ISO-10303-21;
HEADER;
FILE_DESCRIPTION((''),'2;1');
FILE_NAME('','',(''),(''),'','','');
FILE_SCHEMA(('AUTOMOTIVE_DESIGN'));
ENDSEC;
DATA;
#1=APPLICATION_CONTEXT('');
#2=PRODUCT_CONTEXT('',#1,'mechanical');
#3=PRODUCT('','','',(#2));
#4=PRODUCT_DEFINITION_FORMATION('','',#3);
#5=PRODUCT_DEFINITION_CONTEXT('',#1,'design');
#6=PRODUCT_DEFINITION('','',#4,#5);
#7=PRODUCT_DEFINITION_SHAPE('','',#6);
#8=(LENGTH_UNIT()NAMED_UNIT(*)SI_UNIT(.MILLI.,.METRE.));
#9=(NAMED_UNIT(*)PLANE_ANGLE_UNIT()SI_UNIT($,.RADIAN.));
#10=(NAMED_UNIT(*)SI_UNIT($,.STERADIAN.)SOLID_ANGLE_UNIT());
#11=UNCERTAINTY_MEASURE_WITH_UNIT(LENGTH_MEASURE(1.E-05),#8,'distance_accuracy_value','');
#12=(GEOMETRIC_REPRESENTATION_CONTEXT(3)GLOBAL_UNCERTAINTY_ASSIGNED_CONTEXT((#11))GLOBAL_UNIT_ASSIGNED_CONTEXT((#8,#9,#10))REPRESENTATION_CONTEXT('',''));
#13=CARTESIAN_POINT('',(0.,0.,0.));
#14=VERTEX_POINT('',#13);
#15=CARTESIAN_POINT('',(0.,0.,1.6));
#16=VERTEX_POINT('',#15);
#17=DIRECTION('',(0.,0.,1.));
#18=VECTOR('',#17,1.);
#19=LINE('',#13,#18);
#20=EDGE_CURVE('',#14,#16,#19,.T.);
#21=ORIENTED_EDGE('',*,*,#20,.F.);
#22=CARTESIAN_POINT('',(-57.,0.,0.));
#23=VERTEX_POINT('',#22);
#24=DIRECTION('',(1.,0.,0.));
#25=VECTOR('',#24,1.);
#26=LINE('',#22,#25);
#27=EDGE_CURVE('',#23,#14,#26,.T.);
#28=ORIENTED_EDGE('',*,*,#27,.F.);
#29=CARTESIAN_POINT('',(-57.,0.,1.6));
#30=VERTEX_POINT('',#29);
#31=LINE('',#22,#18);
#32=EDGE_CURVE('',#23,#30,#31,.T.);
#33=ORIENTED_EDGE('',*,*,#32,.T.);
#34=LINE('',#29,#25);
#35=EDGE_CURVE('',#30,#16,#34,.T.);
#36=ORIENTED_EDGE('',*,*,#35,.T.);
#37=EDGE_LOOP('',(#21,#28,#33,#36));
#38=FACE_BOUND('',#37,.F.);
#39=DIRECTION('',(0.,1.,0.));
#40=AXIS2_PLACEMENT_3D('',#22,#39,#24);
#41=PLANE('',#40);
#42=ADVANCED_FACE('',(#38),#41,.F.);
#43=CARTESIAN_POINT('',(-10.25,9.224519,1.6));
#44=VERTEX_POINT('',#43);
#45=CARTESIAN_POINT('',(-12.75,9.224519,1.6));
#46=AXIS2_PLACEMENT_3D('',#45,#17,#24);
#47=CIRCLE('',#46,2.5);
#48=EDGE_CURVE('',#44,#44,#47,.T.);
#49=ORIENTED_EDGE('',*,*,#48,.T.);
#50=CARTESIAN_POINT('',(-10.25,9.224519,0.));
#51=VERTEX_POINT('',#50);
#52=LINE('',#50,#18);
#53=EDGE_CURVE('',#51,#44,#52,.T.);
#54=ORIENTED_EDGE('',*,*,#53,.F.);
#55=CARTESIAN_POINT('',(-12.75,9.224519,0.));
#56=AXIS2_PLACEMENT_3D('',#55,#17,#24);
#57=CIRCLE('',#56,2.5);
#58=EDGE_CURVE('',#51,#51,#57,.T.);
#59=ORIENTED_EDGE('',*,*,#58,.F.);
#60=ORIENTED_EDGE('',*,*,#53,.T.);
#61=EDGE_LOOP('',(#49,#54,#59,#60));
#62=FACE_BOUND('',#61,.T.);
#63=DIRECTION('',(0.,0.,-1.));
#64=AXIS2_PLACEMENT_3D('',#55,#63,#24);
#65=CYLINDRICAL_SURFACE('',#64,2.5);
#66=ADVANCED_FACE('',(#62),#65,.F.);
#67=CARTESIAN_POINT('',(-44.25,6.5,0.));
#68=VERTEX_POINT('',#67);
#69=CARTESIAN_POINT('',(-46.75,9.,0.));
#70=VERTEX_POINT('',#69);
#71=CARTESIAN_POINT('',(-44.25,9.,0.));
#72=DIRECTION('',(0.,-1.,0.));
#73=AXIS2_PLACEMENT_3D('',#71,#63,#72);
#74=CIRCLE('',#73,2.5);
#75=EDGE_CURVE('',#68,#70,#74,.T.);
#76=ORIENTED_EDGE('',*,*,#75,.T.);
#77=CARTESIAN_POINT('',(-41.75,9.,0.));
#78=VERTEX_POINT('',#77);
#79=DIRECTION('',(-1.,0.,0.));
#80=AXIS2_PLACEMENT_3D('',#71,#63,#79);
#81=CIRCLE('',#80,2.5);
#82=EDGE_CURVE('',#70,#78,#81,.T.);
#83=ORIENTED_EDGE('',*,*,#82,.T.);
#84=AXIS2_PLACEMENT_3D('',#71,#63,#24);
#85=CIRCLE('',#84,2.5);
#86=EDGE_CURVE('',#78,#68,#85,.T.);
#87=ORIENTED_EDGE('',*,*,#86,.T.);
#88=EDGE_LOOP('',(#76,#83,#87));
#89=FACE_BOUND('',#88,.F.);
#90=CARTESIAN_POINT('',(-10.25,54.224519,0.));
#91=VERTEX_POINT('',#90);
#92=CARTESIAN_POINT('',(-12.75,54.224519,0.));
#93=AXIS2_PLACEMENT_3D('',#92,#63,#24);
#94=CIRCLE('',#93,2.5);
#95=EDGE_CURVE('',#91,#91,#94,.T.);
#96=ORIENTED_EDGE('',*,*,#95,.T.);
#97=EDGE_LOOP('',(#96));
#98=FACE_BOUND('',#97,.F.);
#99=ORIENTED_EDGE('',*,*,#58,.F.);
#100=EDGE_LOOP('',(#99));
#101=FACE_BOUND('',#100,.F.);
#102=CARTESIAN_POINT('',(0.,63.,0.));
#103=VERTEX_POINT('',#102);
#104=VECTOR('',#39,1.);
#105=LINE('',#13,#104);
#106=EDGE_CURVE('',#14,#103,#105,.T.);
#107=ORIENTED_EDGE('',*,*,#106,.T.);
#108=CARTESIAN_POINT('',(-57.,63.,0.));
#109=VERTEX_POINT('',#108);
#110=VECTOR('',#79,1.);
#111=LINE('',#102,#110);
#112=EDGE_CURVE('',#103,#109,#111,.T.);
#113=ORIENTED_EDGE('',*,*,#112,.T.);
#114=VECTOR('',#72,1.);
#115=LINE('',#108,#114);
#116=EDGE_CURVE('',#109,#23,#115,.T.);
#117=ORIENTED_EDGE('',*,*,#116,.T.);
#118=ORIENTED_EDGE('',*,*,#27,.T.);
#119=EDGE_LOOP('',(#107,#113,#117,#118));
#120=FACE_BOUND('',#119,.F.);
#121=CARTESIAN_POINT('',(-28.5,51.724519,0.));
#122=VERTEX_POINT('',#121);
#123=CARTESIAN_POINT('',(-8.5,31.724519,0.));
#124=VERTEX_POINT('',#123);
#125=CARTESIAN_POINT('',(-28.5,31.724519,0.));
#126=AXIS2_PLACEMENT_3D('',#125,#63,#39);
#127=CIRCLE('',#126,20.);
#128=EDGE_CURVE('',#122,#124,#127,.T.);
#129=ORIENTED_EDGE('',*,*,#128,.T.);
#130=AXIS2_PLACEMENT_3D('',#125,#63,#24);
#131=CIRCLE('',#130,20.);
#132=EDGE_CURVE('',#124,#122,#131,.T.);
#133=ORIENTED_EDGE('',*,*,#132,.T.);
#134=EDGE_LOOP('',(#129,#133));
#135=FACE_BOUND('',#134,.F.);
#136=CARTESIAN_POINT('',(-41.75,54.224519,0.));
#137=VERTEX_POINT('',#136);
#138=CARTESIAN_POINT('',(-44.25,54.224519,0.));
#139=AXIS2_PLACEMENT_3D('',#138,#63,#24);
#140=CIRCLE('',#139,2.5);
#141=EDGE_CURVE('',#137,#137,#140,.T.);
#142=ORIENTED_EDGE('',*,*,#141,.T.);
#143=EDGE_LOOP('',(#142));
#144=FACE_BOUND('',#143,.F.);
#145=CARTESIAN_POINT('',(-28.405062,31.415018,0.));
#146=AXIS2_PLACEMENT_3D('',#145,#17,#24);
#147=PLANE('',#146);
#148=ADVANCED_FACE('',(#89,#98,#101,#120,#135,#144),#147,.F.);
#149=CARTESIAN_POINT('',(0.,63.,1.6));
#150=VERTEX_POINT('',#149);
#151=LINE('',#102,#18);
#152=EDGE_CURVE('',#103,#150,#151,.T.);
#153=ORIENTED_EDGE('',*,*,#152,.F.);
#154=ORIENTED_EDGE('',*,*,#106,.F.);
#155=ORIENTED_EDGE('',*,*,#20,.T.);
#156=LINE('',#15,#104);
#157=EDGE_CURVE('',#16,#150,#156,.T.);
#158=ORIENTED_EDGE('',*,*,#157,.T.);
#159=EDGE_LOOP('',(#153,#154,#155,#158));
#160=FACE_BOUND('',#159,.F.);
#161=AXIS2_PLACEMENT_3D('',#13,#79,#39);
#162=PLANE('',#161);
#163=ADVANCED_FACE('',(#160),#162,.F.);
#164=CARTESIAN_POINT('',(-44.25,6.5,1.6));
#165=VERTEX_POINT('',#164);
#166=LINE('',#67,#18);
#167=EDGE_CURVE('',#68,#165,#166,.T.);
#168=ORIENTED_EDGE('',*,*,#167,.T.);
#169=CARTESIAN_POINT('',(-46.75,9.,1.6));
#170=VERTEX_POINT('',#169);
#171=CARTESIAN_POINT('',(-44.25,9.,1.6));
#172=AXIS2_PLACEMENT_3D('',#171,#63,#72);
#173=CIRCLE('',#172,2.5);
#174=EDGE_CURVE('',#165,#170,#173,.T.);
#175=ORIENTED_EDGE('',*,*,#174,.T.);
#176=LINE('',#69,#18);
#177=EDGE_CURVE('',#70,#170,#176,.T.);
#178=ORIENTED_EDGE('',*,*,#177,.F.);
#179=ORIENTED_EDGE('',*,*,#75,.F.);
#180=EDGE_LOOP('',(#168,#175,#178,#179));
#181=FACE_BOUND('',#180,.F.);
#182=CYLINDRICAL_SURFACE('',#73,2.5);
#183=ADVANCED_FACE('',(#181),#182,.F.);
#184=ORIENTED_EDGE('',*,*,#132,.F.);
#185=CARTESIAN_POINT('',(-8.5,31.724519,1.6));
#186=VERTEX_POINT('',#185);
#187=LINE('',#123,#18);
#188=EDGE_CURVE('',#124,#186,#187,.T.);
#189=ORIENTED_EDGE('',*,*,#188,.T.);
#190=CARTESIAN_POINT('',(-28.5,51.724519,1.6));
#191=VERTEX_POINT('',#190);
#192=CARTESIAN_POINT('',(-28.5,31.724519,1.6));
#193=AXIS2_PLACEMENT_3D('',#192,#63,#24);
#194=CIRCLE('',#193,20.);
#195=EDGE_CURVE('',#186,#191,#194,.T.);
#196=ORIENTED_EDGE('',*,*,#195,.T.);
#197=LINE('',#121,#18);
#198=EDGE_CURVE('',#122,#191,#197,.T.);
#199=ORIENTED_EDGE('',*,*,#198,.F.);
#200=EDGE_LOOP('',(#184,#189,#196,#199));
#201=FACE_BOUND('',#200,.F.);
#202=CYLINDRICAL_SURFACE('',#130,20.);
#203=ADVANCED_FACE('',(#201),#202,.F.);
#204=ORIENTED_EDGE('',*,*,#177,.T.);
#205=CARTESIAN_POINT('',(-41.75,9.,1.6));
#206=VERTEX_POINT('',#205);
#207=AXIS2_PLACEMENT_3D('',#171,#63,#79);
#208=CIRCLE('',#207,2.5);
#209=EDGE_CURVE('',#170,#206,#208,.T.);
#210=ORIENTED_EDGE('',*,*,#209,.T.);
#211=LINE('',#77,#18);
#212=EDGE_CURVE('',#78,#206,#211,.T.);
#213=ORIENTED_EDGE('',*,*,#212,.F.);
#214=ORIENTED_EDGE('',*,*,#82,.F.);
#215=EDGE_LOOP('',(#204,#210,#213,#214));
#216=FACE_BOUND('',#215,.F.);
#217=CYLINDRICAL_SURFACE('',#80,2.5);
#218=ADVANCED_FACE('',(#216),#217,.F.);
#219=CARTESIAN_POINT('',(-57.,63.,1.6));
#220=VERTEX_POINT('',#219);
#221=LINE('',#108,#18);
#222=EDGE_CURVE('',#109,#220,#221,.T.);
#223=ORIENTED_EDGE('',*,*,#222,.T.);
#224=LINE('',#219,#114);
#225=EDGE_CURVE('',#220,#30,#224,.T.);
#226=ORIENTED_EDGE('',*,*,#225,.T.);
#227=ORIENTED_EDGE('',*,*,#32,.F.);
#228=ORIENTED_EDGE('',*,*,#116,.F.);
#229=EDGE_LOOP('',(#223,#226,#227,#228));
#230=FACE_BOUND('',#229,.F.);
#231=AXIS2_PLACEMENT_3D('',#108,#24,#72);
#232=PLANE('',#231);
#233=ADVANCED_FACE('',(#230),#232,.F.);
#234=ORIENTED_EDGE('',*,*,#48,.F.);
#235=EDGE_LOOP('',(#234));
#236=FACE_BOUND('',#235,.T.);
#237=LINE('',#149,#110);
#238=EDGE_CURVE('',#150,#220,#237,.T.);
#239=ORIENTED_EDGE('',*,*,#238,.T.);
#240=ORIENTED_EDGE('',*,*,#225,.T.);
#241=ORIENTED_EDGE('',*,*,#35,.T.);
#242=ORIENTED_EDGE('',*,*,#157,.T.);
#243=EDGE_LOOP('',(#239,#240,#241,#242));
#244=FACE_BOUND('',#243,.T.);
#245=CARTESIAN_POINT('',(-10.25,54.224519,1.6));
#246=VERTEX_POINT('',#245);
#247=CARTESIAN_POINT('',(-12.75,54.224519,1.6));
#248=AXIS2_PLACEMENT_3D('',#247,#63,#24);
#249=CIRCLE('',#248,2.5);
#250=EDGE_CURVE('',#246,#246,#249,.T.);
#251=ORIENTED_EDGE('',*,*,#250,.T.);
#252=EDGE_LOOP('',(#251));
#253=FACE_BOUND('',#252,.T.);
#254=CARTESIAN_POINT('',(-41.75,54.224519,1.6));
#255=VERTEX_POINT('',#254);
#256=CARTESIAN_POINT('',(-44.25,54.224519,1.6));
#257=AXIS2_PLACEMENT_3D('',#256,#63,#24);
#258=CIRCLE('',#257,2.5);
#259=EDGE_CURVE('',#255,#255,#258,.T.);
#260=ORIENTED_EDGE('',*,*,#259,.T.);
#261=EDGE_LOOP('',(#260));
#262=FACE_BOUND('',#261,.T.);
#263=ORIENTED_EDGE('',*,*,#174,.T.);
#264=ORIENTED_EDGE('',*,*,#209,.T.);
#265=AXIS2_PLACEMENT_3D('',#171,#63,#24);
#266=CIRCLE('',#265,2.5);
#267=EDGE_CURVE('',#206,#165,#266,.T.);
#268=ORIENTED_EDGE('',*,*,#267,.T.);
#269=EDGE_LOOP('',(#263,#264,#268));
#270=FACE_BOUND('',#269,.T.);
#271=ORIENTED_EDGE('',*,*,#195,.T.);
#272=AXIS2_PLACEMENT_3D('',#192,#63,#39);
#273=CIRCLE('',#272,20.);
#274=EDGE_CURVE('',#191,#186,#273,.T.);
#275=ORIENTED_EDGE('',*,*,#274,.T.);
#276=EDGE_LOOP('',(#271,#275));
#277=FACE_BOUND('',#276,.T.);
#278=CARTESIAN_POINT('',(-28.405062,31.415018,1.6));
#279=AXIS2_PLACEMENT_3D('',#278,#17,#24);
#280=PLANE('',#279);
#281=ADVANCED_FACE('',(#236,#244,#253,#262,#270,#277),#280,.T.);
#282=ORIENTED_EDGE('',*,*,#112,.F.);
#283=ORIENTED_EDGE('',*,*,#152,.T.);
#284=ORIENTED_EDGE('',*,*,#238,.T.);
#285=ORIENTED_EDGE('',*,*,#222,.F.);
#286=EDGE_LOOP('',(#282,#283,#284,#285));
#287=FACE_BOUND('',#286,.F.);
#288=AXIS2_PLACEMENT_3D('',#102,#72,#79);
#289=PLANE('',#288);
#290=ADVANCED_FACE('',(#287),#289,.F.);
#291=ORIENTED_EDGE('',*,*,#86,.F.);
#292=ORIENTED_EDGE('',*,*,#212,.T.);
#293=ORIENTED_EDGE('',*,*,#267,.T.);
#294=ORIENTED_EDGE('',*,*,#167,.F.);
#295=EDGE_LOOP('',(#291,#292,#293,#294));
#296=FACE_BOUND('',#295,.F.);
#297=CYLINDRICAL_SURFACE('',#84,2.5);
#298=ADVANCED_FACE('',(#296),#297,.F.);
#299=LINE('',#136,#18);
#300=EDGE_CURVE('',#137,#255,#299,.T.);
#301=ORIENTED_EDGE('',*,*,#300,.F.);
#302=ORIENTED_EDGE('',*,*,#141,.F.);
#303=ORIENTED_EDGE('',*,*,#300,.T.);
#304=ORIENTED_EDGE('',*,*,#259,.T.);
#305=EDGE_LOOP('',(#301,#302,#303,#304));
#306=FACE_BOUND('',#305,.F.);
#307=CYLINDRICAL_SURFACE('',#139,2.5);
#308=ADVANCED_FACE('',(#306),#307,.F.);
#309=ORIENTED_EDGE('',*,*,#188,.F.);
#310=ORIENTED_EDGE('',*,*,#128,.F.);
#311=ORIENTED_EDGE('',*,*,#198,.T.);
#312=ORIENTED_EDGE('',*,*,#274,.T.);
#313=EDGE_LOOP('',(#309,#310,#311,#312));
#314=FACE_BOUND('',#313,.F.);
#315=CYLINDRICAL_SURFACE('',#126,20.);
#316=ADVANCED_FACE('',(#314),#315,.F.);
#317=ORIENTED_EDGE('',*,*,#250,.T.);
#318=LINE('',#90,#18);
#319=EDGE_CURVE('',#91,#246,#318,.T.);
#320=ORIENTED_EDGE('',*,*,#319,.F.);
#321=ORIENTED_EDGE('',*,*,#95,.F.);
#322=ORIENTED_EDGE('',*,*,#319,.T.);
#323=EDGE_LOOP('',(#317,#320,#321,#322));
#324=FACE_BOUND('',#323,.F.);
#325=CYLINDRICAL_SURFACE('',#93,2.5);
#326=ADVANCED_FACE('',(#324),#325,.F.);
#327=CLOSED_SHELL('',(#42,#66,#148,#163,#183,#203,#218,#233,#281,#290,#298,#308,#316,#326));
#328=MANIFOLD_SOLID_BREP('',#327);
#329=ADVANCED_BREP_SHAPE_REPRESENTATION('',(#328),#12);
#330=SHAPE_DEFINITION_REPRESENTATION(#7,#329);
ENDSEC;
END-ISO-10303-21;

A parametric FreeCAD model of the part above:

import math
import FreeCAD as App
import Part
import Sketcher
from FreeCAD import Vector


def add_polygon(sketch, points):
    """Adds a closed chain of lines whose ends are joined by coincident constraints."""
    first, n = sketch.GeometryCount, len(points)
    for a, b in zip(points, points[1:] + points[:1]):
        sketch.addGeometry(Part.LineSegment(App.Vector(*a, 0), App.Vector(*b, 0)), False)
    for i in range(n):
        sketch.addConstraint(Sketcher.Constraint("Coincident", first + i, 2, first + (i + 1) % n, 1))

doc = App.newDocument("Part")
body = doc.addObject("PartDesign::Body", "Body")

# Sketch on XY plane
sketch1 = body.newObject("Sketcher::SketchObject", "Sketch")
sketch1.AttachmentSupport = (doc.getObject("XY_Plane"), [""])
sketch1.MapMode = "FlatFace"
add_polygon(sketch1, [(0, 0), (0, 63), (-57, 63), (-57, 0)])  # lines 0-3
sketch1.addGeometry(Part.ArcOfCircle(Part.Circle(Vector(-44.25, 9, 0), Vector(0, 0, 1), 2.5), math.radians(-90), math.radians(0)), False)  # 4
sketch1.addGeometry(Part.ArcOfCircle(Part.Circle(Vector(-44.25, 9, 0), Vector(0, 0, 1), 2.5), math.radians(180), math.radians(270)), False)  # 5
sketch1.addGeometry(Part.ArcOfCircle(Part.Circle(Vector(-44.25, 9, 0), Vector(0, 0, 1), 2.5), math.radians(0), math.radians(180)), False)  # 6
sketch1.addGeometry(Part.Circle(Vector(-12.75, 9.224519, 0), Vector(0, 0, 1), 2.5), False)  # 7
sketch1.addGeometry(Part.ArcOfCircle(Part.Circle(Vector(-28.5, 31.724519, 0), Vector(0, 0, 1), 20), math.radians(0), math.radians(90)), False)  # 8
sketch1.addGeometry(Part.ArcOfCircle(Part.Circle(Vector(-28.5, 31.724519, 0), Vector(0, 0, 1), 20), math.radians(90), math.radians(360)), False)  # 9
sketch1.addGeometry(Part.Circle(Vector(-44.25, 54.224519, 0), Vector(0, 0, 1), 2.5), False)  # 10
sketch1.addGeometry(Part.Circle(Vector(-12.75, 54.224519, 0), Vector(0, 0, 1), 2.5), False)  # 11
sketch1.addConstraint(Sketcher.Constraint("Tangent", 4, 1, 5, 2))
sketch1.addConstraint(Sketcher.Constraint("Tangent", 5, 1, 6, 2))
sketch1.addConstraint(Sketcher.Constraint("Tangent", 6, 1, 4, 2))
sketch1.addConstraint(Sketcher.Constraint("Tangent", 8, 1, 9, 2))
sketch1.addConstraint(Sketcher.Constraint("Coincident", 9, 1, 8, 2))
sketch1.addConstraint(Sketcher.Constraint("Vertical", 0))
sketch1.addConstraint(Sketcher.Constraint("Horizontal", 1))
sketch1.addConstraint(Sketcher.Constraint("Vertical", 2))
sketch1.addConstraint(Sketcher.Constraint("Horizontal", 3))
sketch1.addConstraint(Sketcher.Constraint("Coincident", 3, 2, -1, 1))
sketch1.addConstraint(Sketcher.Constraint("Equal", 6, 7))
sketch1.addConstraint(Sketcher.Constraint("Equal", 7, 10))
sketch1.addConstraint(Sketcher.Constraint("Equal", 10, 11))
sketch1.addConstraint(Sketcher.Constraint("Horizontal", 10, 3, 11, 3))
sketch1.addConstraint(Sketcher.Constraint("Horizontal", 6, 3, 5, 1))
sketch1.addConstraint(Sketcher.Constraint("Horizontal", 5, 1, 6, 1))
sketch1.addConstraint(Sketcher.Constraint("Horizontal", 9, 3, 8, 1))
sketch1.addConstraint(Sketcher.Constraint("Vertical", 6, 3, 10, 3))
sketch1.addConstraint(Sketcher.Constraint("Vertical", 7, 3, 11, 3))
sketch1.addConstraint(Sketcher.Constraint("Vertical", 10, 3, 4, 1))
sketch1.addConstraint(Sketcher.Constraint("Vertical", 8, 3, 9, 1))
sketch1.addConstraint(Sketcher.Constraint("Diameter", 7, 5.0))
sketch1.addConstraint(Sketcher.Constraint("Radius", 8, 20.0))
sketch1.addConstraint(Sketcher.Constraint("DistanceX", 1, 2, 1, 1, 57.0))
sketch1.addConstraint(Sketcher.Constraint("DistanceY", 0, 1, 0, 2, 63.0))
sketch1.addConstraint(Sketcher.Constraint("DistanceY", -1, 1, 4, 3, 9.0))
sketch1.addConstraint(Sketcher.Constraint("DistanceY", 7, 3, 11, 3, 45.0))
sketch1.addConstraint(Sketcher.Constraint("DistanceX", 8, 3, -1, 1, 28.5))
sketch1.addConstraint(Sketcher.Constraint("DistanceX", 4, 3, 7, 3, 31.5))
sketch1.addConstraint(Sketcher.Constraint("DistanceY", 7, 3, 8, 3, 22.5))
sketch1.addConstraint(Sketcher.Constraint("DistanceX", 4, 3, -1, 1, 44.25))
sketch1.addConstraint(Sketcher.Constraint("DistanceY", -1, 1, 7, 3, 9.224519))
pad1 = body.newObject("PartDesign::Pad", "Pad")
pad1.Profile = sketch1
pad1.Length = 1.6

doc.recompute()
